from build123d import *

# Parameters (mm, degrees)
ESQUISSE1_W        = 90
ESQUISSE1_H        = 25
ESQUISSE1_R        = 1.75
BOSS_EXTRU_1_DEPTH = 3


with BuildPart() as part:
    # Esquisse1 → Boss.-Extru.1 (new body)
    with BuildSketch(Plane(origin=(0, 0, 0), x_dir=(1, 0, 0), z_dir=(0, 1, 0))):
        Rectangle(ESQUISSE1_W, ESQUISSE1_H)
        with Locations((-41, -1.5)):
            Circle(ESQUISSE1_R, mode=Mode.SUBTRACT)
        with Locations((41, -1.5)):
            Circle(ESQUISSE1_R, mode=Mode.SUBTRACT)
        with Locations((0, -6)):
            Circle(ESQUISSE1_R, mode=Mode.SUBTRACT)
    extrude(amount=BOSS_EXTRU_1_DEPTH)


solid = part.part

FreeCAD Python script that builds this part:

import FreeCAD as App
import Part
import Sketcher
from FreeCAD import Vector


def add_polygon(sketch, points):
    """Adds a closed chain of lines whose ends are joined by coincident constraints."""
    first, n = sketch.GeometryCount, len(points)
    for a, b in zip(points, points[1:] + points[:1]):
        sketch.addGeometry(Part.LineSegment(App.Vector(*a, 0), App.Vector(*b, 0)), False)
    for i in range(n):
        sketch.addConstraint(Sketcher.Constraint("Coincident", first + i, 2, first + (i + 1) % n, 1))

doc = App.newDocument("Part")
body = doc.addObject("PartDesign::Body", "Body")

# Sketch on XZ plane
sketch1 = body.newObject("Sketcher::SketchObject", "Sketch")
sketch1.AttachmentSupport = (doc.getObject("XZ_Plane"), [""])
sketch1.MapMode = "FlatFace"
add_polygon(sketch1, [(-45, -12.5), (-45, 12.5), (45, 12.5), (45, -12.5)])  # lines 0-3
sketch1.addGeometry(Part.Circle(Vector(0, 6, 0), Vector(0, 0, 1), 1.8), False)  # 4
sketch1.addGeometry(Part.Circle(Vector(-41, 1.5, 0), Vector(0, 0, 1), 1.8), False)  # 5
sketch1.addGeometry(Part.Circle(Vector(41, 1.5, 0), Vector(0, 0, 1), 1.8), False)  # 6
sketch1.addConstraint(Sketcher.Constraint("Vertical", 0))
sketch1.addConstraint(Sketcher.Constraint("Horizontal", 1))
sketch1.addConstraint(Sketcher.Constraint("Vertical", 2))
sketch1.addConstraint(Sketcher.Constraint("Horizontal", 3))
sketch1.addConstraint(Sketcher.Constraint("Equal", 4, 5))
sketch1.addConstraint(Sketcher.Constraint("Equal", 5, 6))
sketch1.addConstraint(Sketcher.Constraint("Symmetric", 0, 2, 2, 2, -1, 1))
sketch1.addConstraint(Sketcher.Constraint("Symmetric", 5, 3, 6, 3, -2))
sketch1.addConstraint(Sketcher.Constraint("PointOnObject", 4, 3, -2))
sketch1.addConstraint(Sketcher.Constraint("Diameter", 4, 3.5))
sketch1.addConstraint(Sketcher.Constraint("DistanceX", 1, 1, 1, 2, 90.0))
sketch1.addConstraint(Sketcher.Constraint("DistanceY", 0, 1, 0, 2, 25.0))
sketch1.addConstraint(Sketcher.Constraint("DistanceY", -1, 1, 4, 3, 6.0))
sketch1.addConstraint(Sketcher.Constraint("DistanceX", 5, 3, -1, 1, 41.0))
sketch1.addConstraint(Sketcher.Constraint("DistanceY", 5, 3, 0, 2, 11.0))
pad1 = body.newObject("PartDesign::Pad", "Pad")
pad1.Profile = sketch1
pad1.Length = 3
pad1.Reversed = True

doc.recompute()
